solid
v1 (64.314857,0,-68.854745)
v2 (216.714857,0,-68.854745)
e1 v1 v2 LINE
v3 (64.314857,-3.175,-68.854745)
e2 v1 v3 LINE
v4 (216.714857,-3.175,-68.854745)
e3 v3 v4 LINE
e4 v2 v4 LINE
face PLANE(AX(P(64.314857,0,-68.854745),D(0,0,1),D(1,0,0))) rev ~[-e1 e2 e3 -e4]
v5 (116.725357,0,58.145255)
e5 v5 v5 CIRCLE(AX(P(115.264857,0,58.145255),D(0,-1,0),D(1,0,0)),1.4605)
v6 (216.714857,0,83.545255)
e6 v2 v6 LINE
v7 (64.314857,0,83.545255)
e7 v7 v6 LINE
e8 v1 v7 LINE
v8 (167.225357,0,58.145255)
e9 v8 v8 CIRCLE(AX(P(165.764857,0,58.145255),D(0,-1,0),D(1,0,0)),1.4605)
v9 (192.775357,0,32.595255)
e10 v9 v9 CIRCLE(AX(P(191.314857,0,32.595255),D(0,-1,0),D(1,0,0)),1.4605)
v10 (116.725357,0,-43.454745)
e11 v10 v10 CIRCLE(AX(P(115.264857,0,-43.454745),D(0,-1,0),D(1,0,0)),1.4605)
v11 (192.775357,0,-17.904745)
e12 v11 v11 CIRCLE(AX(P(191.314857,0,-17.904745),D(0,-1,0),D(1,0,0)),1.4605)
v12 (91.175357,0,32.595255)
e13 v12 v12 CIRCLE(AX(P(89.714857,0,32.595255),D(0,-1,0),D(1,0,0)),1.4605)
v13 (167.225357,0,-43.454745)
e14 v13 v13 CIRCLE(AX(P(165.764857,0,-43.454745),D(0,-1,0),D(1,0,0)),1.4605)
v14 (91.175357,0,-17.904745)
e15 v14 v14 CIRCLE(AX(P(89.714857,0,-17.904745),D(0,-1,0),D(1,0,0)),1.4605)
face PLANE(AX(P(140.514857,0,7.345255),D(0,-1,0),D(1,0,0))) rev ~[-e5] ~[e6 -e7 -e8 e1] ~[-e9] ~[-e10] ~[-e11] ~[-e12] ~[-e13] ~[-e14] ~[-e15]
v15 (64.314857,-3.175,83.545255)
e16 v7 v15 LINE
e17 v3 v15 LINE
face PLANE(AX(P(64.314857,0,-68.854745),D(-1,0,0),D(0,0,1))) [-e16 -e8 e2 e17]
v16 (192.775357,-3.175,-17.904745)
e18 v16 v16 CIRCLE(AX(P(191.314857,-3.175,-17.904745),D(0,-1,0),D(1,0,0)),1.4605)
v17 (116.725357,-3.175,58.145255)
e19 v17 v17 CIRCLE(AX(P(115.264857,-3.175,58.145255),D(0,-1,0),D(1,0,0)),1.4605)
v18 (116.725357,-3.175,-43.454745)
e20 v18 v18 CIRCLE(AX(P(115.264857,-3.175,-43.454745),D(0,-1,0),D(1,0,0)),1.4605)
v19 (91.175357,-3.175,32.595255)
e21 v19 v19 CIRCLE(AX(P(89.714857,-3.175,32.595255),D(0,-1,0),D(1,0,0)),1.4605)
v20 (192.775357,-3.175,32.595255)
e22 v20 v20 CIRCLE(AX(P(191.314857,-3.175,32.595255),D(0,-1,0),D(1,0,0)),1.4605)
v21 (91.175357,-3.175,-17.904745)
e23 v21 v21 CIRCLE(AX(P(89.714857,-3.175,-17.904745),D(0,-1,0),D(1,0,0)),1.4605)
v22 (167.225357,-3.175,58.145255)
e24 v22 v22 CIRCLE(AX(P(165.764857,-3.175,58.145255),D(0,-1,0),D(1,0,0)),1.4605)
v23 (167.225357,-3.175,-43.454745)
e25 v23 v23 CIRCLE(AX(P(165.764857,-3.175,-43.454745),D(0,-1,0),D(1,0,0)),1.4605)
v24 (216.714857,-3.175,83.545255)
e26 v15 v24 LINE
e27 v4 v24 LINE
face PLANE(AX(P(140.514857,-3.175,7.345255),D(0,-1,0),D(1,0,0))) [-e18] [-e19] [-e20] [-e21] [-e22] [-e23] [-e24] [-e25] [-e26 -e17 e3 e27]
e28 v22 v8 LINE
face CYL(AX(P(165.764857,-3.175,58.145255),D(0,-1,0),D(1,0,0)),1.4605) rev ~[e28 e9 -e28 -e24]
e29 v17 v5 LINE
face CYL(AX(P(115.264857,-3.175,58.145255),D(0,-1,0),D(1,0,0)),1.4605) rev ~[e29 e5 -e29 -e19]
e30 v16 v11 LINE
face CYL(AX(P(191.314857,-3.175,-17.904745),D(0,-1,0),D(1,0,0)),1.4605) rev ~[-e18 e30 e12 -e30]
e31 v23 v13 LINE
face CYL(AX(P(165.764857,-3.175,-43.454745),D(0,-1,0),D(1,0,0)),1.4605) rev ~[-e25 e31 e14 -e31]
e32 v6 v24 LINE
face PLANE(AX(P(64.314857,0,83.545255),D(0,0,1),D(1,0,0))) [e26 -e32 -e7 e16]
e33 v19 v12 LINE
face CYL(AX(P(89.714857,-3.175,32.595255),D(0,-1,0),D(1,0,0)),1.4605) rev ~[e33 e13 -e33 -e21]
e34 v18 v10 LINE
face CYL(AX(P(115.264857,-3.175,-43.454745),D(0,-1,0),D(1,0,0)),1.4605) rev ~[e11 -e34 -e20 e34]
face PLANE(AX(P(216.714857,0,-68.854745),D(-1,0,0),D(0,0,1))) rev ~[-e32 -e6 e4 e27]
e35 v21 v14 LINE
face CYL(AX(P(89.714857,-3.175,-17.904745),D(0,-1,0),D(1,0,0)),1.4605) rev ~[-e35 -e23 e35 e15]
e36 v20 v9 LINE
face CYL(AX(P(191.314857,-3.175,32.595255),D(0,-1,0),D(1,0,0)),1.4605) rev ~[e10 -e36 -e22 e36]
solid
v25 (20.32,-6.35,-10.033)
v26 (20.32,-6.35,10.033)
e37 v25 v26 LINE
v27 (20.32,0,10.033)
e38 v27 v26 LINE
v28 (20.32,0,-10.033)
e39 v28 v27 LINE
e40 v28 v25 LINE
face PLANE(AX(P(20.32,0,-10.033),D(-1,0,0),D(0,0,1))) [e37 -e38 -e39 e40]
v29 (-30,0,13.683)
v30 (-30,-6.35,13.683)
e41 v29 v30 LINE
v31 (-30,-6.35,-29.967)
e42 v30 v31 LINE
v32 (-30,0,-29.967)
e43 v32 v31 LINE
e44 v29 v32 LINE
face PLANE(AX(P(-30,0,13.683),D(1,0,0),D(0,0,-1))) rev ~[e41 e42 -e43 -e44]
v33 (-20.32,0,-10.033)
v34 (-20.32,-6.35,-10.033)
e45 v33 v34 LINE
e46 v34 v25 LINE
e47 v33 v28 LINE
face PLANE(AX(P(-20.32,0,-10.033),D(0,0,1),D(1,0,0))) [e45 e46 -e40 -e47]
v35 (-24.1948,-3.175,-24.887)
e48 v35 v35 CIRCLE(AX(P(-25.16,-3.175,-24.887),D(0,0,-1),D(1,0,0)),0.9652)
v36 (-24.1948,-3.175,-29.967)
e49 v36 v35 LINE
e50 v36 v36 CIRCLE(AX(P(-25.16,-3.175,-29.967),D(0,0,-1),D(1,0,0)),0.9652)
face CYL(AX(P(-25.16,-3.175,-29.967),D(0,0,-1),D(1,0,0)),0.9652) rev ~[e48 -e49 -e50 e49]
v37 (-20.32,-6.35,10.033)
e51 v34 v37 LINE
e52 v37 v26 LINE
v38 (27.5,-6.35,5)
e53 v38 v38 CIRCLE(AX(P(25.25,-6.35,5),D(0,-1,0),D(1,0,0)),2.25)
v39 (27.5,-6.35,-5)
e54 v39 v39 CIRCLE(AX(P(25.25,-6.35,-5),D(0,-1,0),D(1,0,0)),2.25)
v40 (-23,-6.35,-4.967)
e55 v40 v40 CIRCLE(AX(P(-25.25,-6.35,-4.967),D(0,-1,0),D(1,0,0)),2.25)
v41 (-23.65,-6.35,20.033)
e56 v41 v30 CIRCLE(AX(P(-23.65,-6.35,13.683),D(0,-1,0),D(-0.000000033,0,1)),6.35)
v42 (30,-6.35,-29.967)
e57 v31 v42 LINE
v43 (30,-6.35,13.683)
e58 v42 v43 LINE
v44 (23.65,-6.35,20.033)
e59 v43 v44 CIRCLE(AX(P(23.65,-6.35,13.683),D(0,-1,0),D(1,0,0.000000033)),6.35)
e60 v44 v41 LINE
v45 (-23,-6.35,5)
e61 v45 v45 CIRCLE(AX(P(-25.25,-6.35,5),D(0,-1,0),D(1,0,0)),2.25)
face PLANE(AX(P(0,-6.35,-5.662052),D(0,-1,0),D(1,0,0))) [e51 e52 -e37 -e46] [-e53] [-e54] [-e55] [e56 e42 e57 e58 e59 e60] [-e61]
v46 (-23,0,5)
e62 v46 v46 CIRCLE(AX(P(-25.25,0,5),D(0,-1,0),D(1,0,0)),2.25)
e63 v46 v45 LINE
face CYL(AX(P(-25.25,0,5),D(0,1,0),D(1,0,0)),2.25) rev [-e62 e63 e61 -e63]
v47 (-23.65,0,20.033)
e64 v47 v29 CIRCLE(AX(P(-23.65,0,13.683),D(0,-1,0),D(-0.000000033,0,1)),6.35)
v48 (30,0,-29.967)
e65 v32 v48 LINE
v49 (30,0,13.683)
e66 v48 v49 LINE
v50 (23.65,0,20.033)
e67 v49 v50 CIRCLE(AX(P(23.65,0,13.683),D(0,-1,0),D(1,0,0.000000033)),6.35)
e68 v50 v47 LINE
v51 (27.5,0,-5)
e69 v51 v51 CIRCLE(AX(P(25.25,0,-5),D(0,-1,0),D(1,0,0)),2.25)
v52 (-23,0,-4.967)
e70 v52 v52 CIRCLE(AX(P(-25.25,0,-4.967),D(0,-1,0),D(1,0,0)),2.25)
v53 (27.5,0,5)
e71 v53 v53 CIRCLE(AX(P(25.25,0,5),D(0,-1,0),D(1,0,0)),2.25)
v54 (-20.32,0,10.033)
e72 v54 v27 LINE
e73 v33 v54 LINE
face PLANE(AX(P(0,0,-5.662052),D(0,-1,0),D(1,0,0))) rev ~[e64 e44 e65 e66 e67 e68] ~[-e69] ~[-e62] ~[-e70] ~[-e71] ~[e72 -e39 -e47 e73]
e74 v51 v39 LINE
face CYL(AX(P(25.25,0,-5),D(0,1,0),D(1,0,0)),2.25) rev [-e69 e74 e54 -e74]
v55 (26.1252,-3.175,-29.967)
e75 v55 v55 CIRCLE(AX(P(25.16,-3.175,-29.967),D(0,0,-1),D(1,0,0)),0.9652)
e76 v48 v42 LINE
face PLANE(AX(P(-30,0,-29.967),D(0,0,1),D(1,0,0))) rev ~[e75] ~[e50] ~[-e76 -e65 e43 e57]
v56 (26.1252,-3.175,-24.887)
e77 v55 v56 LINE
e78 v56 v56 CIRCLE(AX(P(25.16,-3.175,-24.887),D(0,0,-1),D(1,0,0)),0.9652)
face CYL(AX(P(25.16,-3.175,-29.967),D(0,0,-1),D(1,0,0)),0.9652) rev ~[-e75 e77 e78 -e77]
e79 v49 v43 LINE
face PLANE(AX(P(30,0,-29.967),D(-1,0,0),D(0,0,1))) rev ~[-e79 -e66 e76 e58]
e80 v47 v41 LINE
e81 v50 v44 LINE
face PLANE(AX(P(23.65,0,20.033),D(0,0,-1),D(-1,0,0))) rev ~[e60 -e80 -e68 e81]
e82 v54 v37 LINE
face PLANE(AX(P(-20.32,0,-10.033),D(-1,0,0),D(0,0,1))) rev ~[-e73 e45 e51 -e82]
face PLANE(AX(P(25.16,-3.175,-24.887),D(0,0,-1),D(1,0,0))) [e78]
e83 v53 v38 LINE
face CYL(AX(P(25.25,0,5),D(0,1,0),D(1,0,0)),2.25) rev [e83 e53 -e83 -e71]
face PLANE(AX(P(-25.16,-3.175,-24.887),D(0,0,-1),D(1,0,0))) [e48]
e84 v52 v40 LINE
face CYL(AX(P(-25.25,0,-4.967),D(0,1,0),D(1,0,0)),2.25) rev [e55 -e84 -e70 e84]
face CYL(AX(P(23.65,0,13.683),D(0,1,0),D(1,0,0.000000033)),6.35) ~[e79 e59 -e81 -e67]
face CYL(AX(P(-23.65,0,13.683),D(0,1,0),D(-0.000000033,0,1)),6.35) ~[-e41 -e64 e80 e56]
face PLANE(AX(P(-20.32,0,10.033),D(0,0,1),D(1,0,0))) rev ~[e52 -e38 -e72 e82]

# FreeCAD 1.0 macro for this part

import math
import FreeCAD as App
import Part
import Sketcher

V = App.Vector
Q = App.Units.Quantity


def add_polygon(sketch, points):
    """Adds a closed chain of lines whose ends are joined by coincident constraints."""
    first, n = sketch.GeometryCount, len(points)
    for a, b in zip(points, points[1:] + points[:1]):
        sketch.addGeometry(Part.LineSegment(App.Vector(*a, 0), App.Vector(*b, 0)), False)
    for i in range(n):
        sketch.addConstraint(Sketcher.Constraint("Coincident", first + i, 2, first + (i + 1) % n, 1))

doc = App.newDocument("Part")
params = doc.addObject("Spreadsheet::Sheet", "Params")
for row, (alias, value) in enumerate([
    ("sketch1_radius", "0.25 in"),
    ("sketch1_width", "1.6 in"),
    ("sketch1_height", "0.79 in"),
    ("pad1_length", "0.25 in"),
    ("sketch2_diameter", "0.076 in"),
    ("pocket1_length", "0.2 in"),
    ("sketch3_width", "6 in"),
    ("pad2_length", "0.125 in"),
    ("sketch4_diameter", "0.115 in"),
    ("pocket2_length", "1 in"),
], start=1):
    params.set(f"A{row}", alias)
    params.set(f"B{row}", "=" + value)
    params.setAlias(f"B{row}", alias)

body = doc.addObject("PartDesign::Body", "Body")

# Sketch on XZ plane
sketch1 = doc.addObject("Sketcher::SketchObject", "Sketch")
body.addObject(sketch1)
sketch1.AttachmentSupport = (doc.XZ_Plane, [""])
sketch1.MapMode = "FlatFace"
sketch1.addGeometry(Part.ArcOfCircle(Part.Circle(V(23.65, 13.683, 0), V(0, 0, 1), 6.35), math.radians(0.000002), math.radians(89.999998)), False)  # 0
sketch1.addGeometry(Part.LineSegment(V(23.65, 20.033, 0), V(-23.65, 20.033, 0)), False)  # 1
sketch1.addGeometry(Part.ArcOfCircle(Part.Circle(V(-23.65, 13.683, 0), V(0, 0, 1), 6.35), math.radians(90.000002), math.radians(179.999998)), False)  # 2
sketch1.addGeometry(Part.LineSegment(V(-30, 13.683, 0), V(-30, -29.967, 0)), False)  # 3
sketch1.addGeometry(Part.LineSegment(V(-30, -29.967, 0), V(30, -29.967, 0)), False)  # 4
sketch1.addGeometry(Part.LineSegment(V(30, -29.967, 0), V(30, 13.683, 0)), False)  # 5
sketch1.addGeometry(Part.Circle(V(-25.25, -4.967, 0), V(0, 0, 1), 2.25), False)  # 6
sketch1.addGeometry(Part.Circle(V(25.25, -5, 0), V(0, 0, 1), 2.25), False)  # 7
sketch1.addGeometry(Part.Circle(V(-25.25, 5, 0), V(0, 0, 1), 2.25), False)  # 8
add_polygon(sketch1, [(20.32, -10.033), (-20.32, -10.033), (-20.32, 10.033), (20.32, 10.033)])  # lines 9-12
sketch1.addGeometry(Part.Circle(V(25.25, 5, 0), V(0, 0, 1), 2.25), False)  # 13
sketch1.addConstraint([
    Sketcher.Constraint("Tangent", 0, 2, 1, 1),
    Sketcher.Constraint("Tangent", 1, 2, 2, 1),
    Sketcher.Constraint("Tangent", 2, 2, 3, 1),
    Sketcher.Constraint("Coincident", 3, 2, 4, 1),
    Sketcher.Constraint("Coincident", 4, 2, 5, 1),
    Sketcher.Constraint("Tangent", 5, 2, 0, 1),
    Sketcher.Constraint("Horizontal", 1),
    Sketcher.Constraint("Vertical", 3),
    Sketcher.Constraint("Horizontal", 4),
    Sketcher.Constraint("Vertical", 5),
    Sketcher.Constraint("Horizontal", 9),
    Sketcher.Constraint("Vertical", 10),
    Sketcher.Constraint("Horizontal", 11),
    Sketcher.Constraint("Vertical", 12),
    Sketcher.Constraint("Equal", 0, 2),
    Sketcher.Constraint("Equal", 6, 7),
    Sketcher.Constraint("Equal", 7, 8),
    Sketcher.Constraint("Equal", 8, 13),
    Sketcher.Constraint("Symmetric", 7, 3, 8, 3, -1, 1),
    Sketcher.Constraint("Symmetric", 9, 2, 11, 2, -1, 1),
    Sketcher.Constraint("Symmetric", 8, 3, 13, 3, -2),
    Sketcher.Constraint("Vertical", 6, 3, 8, 3),
    Sketcher.Constraint("Radius", 0, Q("0.25 in")),
    Sketcher.Constraint("DistanceX", 9, 2, 9, 1, Q("1.6 in")),
    Sketcher.Constraint("DistanceY", 10, 1, 10, 2, Q("0.79 in")),
    Sketcher.Constraint("Diameter", 6, Q("4.5 mm")),
    Sketcher.Constraint("DistanceX", 1, 2, 1, 1, Q("47.3 mm")),
    Sketcher.Constraint("DistanceY", 3, 2, 3, 1, Q("43.65 mm")),
    Sketcher.Constraint("DistanceX", -1, 1, 0, 3, Q("23.65 mm")),
    Sketcher.Constraint("DistanceY", -1, 1, 0, 3, Q("13.683 mm")),
    Sketcher.Constraint("DistanceX", 6, 3, -1, 1, Q("25.25 mm")),
    Sketcher.Constraint("DistanceY", 6, 3, -1, 1, Q("4.967 mm")),
    Sketcher.Constraint("DistanceY", 7, 3, -1, 1, Q("5 mm")),
])
sketch1.setExpression("Constraints[26]", "Params.sketch1_radius")
sketch1.setExpression("Constraints[27]", "Params.sketch1_width")
sketch1.setExpression("Constraints[28]", "Params.sketch1_height")
pad1 = doc.addObject("PartDesign::Pad", "Pad")
body.addObject(pad1)
pad1.Profile = sketch1
pad1.setExpression("Length", "Params.pad1_length")

# Sketch on XY plane
sketch2 = doc.addObject("Sketcher::SketchObject", "Sketch001")
body.addObject(sketch2)
sketch2.AttachmentSupport = (doc.XY_Plane, [""])
sketch2.MapMode = "FlatFace"
sketch2.AttachmentOffset = App.Placement(V(0, 0, -29.967), App.Rotation())
sketch2.addGeometry([
    Part.Circle(V(-25.16, -3.175, 0), V(0, 0, 1), 0.9652),
    Part.Circle(V(25.16, -3.175, 0), V(0, 0, 1), 0.9652),
], False)
sketch2.addConstraint([
    Sketcher.Constraint("Equal", 0, 1),
    Sketcher.Constraint("Symmetric", 0, 3, 1, 3, -2),
    Sketcher.Constraint("Diameter", 0, Q("0.076 in")),
    Sketcher.Constraint("DistanceY", 0, 3, -1, 1, Q("0.125 in")),
    Sketcher.Constraint("DistanceX", 0, 3, -1, 1, Q("25.16 mm")),
])
sketch2.setExpression("Constraints[2]", "Params.sketch2_diameter")
pocket1 = doc.addObject("PartDesign::Pocket", "Pocket")
body.addObject(pocket1)
pocket1.Profile = sketch2
pocket1.setExpression("Length", "Params.pocket1_length")
pocket1.Reversed = True
body2 = doc.addObject("PartDesign::Body", "Body001")

# Sketch on XZ plane
sketch3 = doc.addObject("Sketcher::SketchObject", "Sketch002")
body2.addObject(sketch3)
sketch3.AttachmentSupport = (doc.getObject("XZ_Plane001"), [""])
sketch3.MapMode = "FlatFace"
add_polygon(sketch3, [(64.314857, 83.545255), (64.314857, -68.854745), (216.714857, -68.854745), (216.714857, 83.545255)])  # lines 0-3
sketch3.addConstraint([
    Sketcher.Constraint("Vertical", 0),
    Sketcher.Constraint("Horizontal", 1),
    Sketcher.Constraint("Vertical", 2),
    Sketcher.Constraint("Horizontal", 3),
    Sketcher.Constraint("Equal", 3, 0),
    Sketcher.Constraint("DistanceX", 1, 1, 1, 2, Q("6 in")),
    Sketcher.Constraint("DistanceX", -1, 1, 0, 2, Q("64.314857 mm")),
    Sketcher.Constraint("DistanceY", 0, 2, -1, 1, Q("68.854745 mm")),
])
sketch3.setExpression("Constraints[9]", "Params.sketch3_width")
pad2 = doc.addObject("PartDesign::Pad", "Pad001")
body2.addObject(pad2)
pad2.Profile = sketch3
pad2.setExpression("Length", "Params.pad2_length")

# Sketch on XZ plane
sketch4 = doc.addObject("Sketcher::SketchObject", "Sketch003")
body2.addObject(sketch4)
sketch4.AttachmentSupport = (doc.getObject("XZ_Plane001"), [""])
sketch4.MapMode = "FlatFace"
sketch4.AttachmentOffset = App.Placement(V(0, 0, 0.125 * 25.4), App.Rotation())
sketch4.addGeometry([
    Part.Circle(V(191.314857, 32.595255, 0), V(0, 0, 1), 1.4605),  # 0
    Part.Circle(V(165.764857, 58.145255, 0), V(0, 0, 1), 1.4605),  # 1
    Part.Circle(V(115.264857, 58.145255, 0), V(0, 0, 1), 1.4605),  # 2
    Part.Circle(V(89.714857, 32.595255, 0), V(0, 0, 1), 1.4605),  # 3
    Part.Circle(V(89.714857, -17.904745, 0), V(0, 0, 1), 1.4605),  # 4
    Part.Circle(V(115.264857, -43.454745, 0), V(0, 0, 1), 1.4605),  # 5
    Part.Circle(V(165.764857, -43.454745, 0), V(0, 0, 1), 1.4605),  # 6
    Part.Circle(V(191.314857, -17.904745, 0), V(0, 0, 1), 1.4605),  # 7
], False)
sketch4.addConstraint([
    Sketcher.Constraint("Equal", 0, 1),
    Sketcher.Constraint("Equal", 1, 2),
    Sketcher.Constraint("Equal", 2, 3),
    Sketcher.Constraint("Equal", 3, 4),
    Sketcher.Constraint("Equal", 4, 5),
    Sketcher.Constraint("Equal", 5, 6),
    Sketcher.Constraint("Equal", 6, 7),
    Sketcher.Constraint("Horizontal", 1, 3, 2, 3),
    Sketcher.Constraint("Horizontal", 0, 3, 3, 3),
    Sketcher.Constraint("Horizontal", 5, 3, 6, 3),
    Sketcher.Constraint("Horizontal", 4, 3, 7, 3),
    Sketcher.Constraint("Vertical", 3, 3, 4, 3),
    Sketcher.Constraint("Vertical", 2, 3, 5, 3),
    Sketcher.Constraint("Vertical", 1, 3, 6, 3),
    Sketcher.Constraint("Vertical", 0, 3, 7, 3),
    Sketcher.Constraint("Diameter", 0, Q("0.115 in")),
    Sketcher.Constraint("DistanceX", 3, 3, 0, 3, Q("4 in")),
    Sketcher.Constraint("DistanceY", 5, 3, 2, 3, Q("4 in")),
    Sketcher.Constraint("DistanceX", 1, 3, 0, 3, Q("25.55 mm")),
    Sketcher.Constraint("DistanceY", 0, 3, 1, 3, Q("25.55 mm")),
    Sketcher.Constraint("DistanceX", 2, 3, 1, 3, Q("50.5 mm")),
    Sketcher.Constraint("DistanceY", 4, 3, 3, 3, Q("50.5 mm")),
    Sketcher.Constraint("DistanceX", -1, 1, 0, 3, Q("191.314857 mm")),
    Sketcher.Constraint("DistanceY", -1, 1, 0, 3, Q("32.595255 mm")),
])
sketch4.setExpression("Constraints[15]", "Params.sketch4_diameter")
pocket2 = doc.addObject("PartDesign::Pocket", "Pocket001")
body2.addObject(pocket2)
pocket2.Profile = sketch4
pocket2.setExpression("Length", "Params.pocket2_length")

doc.recompute()
